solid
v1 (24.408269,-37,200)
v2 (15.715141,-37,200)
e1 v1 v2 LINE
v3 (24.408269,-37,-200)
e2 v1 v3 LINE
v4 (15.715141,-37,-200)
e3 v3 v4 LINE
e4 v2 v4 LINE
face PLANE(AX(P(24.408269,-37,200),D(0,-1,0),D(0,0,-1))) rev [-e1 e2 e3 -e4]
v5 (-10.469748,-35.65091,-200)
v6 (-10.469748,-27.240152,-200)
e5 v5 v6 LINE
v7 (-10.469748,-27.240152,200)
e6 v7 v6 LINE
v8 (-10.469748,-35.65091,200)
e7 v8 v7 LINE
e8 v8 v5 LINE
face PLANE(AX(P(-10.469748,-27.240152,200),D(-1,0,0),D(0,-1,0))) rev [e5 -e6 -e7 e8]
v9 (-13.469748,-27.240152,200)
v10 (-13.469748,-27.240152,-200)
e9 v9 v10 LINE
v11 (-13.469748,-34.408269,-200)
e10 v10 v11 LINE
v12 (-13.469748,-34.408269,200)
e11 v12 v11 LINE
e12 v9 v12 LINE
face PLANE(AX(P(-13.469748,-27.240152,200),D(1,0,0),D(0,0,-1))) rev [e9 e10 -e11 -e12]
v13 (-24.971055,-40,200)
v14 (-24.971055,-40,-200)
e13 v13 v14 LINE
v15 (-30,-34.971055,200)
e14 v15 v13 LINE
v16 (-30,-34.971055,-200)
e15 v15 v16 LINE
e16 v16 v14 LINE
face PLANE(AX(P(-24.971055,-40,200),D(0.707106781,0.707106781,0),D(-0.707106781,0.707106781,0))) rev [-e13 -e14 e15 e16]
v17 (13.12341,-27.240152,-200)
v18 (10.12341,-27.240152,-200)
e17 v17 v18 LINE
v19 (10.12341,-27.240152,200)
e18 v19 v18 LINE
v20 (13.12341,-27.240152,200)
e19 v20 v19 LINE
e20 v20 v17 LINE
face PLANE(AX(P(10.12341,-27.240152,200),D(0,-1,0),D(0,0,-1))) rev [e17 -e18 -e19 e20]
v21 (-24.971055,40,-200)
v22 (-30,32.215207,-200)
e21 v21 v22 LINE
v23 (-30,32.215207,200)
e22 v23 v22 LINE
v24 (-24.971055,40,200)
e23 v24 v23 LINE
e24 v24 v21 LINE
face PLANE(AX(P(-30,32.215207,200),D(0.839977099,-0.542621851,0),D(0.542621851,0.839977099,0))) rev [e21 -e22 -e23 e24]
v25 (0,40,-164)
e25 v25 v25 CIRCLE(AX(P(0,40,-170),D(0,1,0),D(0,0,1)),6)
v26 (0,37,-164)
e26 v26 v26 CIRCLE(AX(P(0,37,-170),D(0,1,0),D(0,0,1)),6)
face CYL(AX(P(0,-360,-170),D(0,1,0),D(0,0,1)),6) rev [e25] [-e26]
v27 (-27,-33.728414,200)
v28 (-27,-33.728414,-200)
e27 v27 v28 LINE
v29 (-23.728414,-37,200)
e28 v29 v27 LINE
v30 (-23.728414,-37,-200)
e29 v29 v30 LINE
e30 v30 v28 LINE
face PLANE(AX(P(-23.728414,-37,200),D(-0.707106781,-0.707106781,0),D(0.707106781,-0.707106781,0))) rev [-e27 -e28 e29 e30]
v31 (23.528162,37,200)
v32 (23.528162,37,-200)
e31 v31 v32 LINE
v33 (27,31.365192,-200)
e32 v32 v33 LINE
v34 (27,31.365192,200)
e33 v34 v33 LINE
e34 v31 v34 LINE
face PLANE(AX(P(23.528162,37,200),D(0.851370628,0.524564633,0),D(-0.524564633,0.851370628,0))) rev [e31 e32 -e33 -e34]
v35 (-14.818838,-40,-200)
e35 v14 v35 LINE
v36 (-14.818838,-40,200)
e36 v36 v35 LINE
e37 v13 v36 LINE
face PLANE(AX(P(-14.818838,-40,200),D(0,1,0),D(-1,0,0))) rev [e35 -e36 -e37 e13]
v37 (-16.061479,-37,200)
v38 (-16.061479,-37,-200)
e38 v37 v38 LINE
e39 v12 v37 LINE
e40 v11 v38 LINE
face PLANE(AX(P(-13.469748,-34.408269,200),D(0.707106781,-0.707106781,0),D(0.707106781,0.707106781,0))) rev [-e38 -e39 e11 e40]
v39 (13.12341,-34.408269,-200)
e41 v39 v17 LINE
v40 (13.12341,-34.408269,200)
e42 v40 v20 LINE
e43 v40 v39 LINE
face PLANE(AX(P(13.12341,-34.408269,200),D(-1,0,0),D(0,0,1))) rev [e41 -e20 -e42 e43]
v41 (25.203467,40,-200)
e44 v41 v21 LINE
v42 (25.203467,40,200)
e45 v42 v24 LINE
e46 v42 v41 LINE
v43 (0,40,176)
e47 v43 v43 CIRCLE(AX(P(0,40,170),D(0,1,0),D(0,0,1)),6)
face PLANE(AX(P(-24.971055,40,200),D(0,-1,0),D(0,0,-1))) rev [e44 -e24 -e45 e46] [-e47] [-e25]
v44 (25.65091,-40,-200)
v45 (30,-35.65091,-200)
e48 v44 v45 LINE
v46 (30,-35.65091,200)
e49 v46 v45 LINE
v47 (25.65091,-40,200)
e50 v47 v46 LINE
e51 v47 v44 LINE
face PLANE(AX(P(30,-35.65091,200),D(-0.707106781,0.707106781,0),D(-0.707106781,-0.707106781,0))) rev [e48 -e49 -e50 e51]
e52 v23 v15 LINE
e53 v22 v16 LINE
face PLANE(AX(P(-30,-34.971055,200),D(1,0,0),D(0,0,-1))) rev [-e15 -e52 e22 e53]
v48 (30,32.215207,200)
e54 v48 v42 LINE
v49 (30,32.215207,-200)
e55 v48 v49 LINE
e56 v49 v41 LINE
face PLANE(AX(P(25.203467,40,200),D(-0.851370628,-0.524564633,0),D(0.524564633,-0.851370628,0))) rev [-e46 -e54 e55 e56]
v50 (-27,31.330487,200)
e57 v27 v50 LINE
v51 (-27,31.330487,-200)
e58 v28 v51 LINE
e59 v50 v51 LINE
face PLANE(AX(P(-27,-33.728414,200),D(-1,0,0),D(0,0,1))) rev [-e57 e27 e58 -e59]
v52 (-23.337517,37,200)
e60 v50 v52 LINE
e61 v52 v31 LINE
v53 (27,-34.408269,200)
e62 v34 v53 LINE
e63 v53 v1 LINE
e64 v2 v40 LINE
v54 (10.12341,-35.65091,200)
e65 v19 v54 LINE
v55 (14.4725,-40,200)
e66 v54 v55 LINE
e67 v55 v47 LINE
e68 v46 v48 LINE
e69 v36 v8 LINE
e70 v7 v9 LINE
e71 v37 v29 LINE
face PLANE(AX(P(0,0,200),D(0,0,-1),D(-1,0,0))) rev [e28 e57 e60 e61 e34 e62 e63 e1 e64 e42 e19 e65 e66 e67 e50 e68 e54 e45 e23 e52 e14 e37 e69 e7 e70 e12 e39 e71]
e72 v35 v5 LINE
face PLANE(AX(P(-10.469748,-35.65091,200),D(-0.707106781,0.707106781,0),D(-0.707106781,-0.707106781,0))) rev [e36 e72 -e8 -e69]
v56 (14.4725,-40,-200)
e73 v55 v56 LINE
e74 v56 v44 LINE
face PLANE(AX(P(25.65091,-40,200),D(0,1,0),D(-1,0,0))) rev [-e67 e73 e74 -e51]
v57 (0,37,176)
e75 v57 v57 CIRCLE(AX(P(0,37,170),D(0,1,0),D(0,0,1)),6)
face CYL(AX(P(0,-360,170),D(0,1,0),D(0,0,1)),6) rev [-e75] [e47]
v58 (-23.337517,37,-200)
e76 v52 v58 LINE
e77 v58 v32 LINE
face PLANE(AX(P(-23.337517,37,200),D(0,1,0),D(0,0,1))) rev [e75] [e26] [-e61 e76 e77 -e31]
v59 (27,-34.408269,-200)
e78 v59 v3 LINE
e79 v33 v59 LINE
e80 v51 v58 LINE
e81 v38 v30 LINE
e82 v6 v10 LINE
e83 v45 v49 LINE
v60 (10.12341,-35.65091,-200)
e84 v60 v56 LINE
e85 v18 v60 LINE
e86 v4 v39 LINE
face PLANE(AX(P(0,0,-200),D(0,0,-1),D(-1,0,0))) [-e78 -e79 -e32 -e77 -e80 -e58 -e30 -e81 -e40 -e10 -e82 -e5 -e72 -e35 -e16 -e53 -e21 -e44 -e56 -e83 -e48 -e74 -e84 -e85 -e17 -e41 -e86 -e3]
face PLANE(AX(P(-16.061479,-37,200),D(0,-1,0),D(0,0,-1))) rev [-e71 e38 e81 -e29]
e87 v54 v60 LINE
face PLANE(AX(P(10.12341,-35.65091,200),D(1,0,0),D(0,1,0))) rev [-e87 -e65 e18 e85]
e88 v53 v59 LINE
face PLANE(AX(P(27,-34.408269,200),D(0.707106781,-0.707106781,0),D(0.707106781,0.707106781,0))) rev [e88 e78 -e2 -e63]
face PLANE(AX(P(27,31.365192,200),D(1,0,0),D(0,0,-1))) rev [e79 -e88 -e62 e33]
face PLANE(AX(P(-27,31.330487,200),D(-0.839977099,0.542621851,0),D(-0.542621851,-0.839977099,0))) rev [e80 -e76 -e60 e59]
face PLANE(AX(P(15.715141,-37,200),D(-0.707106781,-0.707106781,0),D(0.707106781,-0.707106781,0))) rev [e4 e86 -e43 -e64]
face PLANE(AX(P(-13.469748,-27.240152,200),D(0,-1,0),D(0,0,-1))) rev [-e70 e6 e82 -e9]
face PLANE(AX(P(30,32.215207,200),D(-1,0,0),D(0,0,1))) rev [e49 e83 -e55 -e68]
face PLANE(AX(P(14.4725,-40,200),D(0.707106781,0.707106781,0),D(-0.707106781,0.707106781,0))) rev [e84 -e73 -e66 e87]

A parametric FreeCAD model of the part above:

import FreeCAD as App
import Part
import Sketcher


def add_polygon(sketch, points):
    """Adds a closed chain of lines whose ends are joined by coincident constraints."""
    first, n = sketch.GeometryCount, len(points)
    for a, b in zip(points, points[1:] + points[:1]):
        sketch.addGeometry(Part.LineSegment(App.Vector(*a, 0), App.Vector(*b, 0)), False)
    for i in range(n):
        sketch.addConstraint(Sketcher.Constraint("Coincident", first + i, 2, first + (i + 1) % n, 1))

doc = App.newDocument("Part")
params = doc.addObject("Spreadsheet::Sheet", "Params")
for row, (alias, value) in enumerate([
    ("sketch1_width", "3 mm"),
    ("pad1_length", "400 mm"),
    ("sketch2_diameter", "12 mm"),
    ("pocket1_length", "400 mm"),
], start=1):
    params.set(f"A{row}", alias)
    params.set(f"B{row}", "=" + value)
    params.setAlias(f"B{row}", alias)

body = doc.addObject("PartDesign::Body", "Body")

# Sketch on XY plane
sketch1 = body.newObject("Sketcher::SketchObject", "Sketch")
sketch1.AttachmentSupport = (doc.getObject("XY_Plane"), [""])
sketch1.MapMode = "FlatFace"
add_polygon(sketch1, [(-10.469748, -35.65091), (-10.469748, -27.240152), (-13.469748, -27.240152), (-13.469748, -34.408269), (-16.061479, -37), (-23.728414, -37), (-27, -33.728414), (-27, 31.330487), (-23.337517, 37), (23.528162, 37), (27, 31.365192), (27, -34.408269), (24.408269, -37), (15.715141, -37), (13.12341, -34.408269), (13.12341, -27.240152), (10.12341, -27.240152), (10.12341, -35.65091), (14.4725, -40), (25.65091, -40), (30, -35.65091), (30, 32.215207), (25.203467, 40), (-24.971055, 40), (-30, 32.215207), (-30, -34.971055), (-24.971055, -40), (-14.818838, -40)])  # lines 0-27
sketch1.addConstraint([
    Sketcher.Constraint("Vertical", 0),
    Sketcher.Constraint("Horizontal", 1),
    Sketcher.Constraint("Vertical", 2),
    Sketcher.Constraint("Horizontal", 4),
    Sketcher.Constraint("Vertical", 6),
    Sketcher.Constraint("Horizontal", 8),
    Sketcher.Constraint("Vertical", 10),
    Sketcher.Constraint("Horizontal", 12),
    Sketcher.Constraint("Vertical", 14),
    Sketcher.Constraint("Horizontal", 15),
    Sketcher.Constraint("Vertical", 16),
    Sketcher.Constraint("Horizontal", 18),
    Sketcher.Constraint("Vertical", 20),
    Sketcher.Constraint("Horizontal", 22),
    Sketcher.Constraint("Vertical", 24),
    Sketcher.Constraint("Horizontal", 26),
    Sketcher.Constraint("Symmetric", 20, 2, 23, 2, -2),
    Sketcher.Constraint("Symmetric", 22, 2, 25, 2, -1),
    Sketcher.Constraint("Perpendicular", 3, 5),
    Sketcher.Constraint("Perpendicular", 5, 11),
    Sketcher.Constraint("Perpendicular", 11, 13),
    Sketcher.Constraint("Parallel", 13, 17),
    Sketcher.Constraint("Perpendicular", 17, 19),
    Sketcher.Constraint("Parallel", 9, 21),
    Sketcher.Constraint("Parallel", 7, 23),
    Sketcher.Constraint("Perpendicular", 19, 25),
    Sketcher.Constraint("Perpendicular", 25, 27),
    Sketcher.Constraint("Horizontal", 2, 2, 10, 2),
    Sketcher.Constraint("Horizontal", 4, 2, 11, 2),
    Sketcher.Constraint("Horizontal", 10, 2, 13, 2),
    Sketcher.Constraint("Horizontal", 1, 2, 14, 2),
    Sketcher.Constraint("Horizontal", 16, 2, 19, 2),
    Sketcher.Constraint("Horizontal", 18, 2, 25, 2),
    Sketcher.Constraint("Horizontal", 19, 2, 27, 2),
    Sketcher.Constraint("Equal", 1, 15),
    Sketcher.Constraint("Equal", 11, 13),
    Sketcher.Constraint("DistanceX", 1, 2, 1, 1, 3.0),
    Sketcher.Constraint("DistanceY", 3, 2, -1, 1, 37.0),
    Sketcher.Constraint("DistanceX", 5, 2, -1, 1, 27.0),
    Sketcher.Constraint("DistanceY", -1, 1, 7, 2, 37.0),
    Sketcher.Constraint("DistanceX", -1, 1, 9, 2, 27.0),
    Sketcher.Constraint("DistanceY", 17, 2, -1, 1, 40.0),
    Sketcher.Constraint("DistanceX", -1, 1, 19, 2, 30.0),
    Sketcher.Constraint("DistanceY", 6, 1, 6, 2, 65.058901),
    Sketcher.Constraint("DistanceX", 8, 1, 8, 2, 46.865679),
    Sketcher.Constraint("DistanceX", 12, 2, 12, 1, 8.693128),
    Sketcher.Constraint("DistanceX", 18, 1, 18, 2, 11.17841),
    Sketcher.Constraint("DistanceY", 0, 1, 0, 2, 8.410758),
    Sketcher.Constraint("DistanceY", 10, 2, 10, 1, 65.773461),
    Sketcher.Constraint("DistanceX", -1, 1, 17, 2, 14.4725),
    Sketcher.Constraint("Distance", 5, 4.626721),
    Sketcher.Constraint("DistanceX", 4, 2, 4, 1, 7.666935),
    Sketcher.Constraint("DistanceX", 22, 2, 22, 1, 50.174522),
    Sketcher.Constraint("DistanceX", 26, 1, 26, 2, 10.152217),
])
sketch1.setExpression("Constraints[64]", "Params.sketch1_width")
pad1 = body.newObject("PartDesign::Pad", "Pad")
pad1.Profile = sketch1
pad1.setExpression("Length", "Params.pad1_length")
pad1.Midplane = True

# Sketch on XZ plane
sketch2 = body.newObject("Sketcher::SketchObject", "Sketch001")
sketch2.AttachmentSupport = (doc.getObject("XZ_Plane"), [""])
sketch2.MapMode = "FlatFace"
sketch2.AttachmentOffset = App.Placement(App.Vector(0, 0, -40), App.Rotation())
sketch2.addGeometry([
    Part.Circle(App.Vector(0, -170, 0), App.Vector(0, 0, 1), 6),
    Part.Circle(App.Vector(0, 170, 0), App.Vector(0, 0, 1), 6),
], False)
sketch2.addConstraint([
    Sketcher.Constraint("Equal", 0, 1),
    Sketcher.Constraint("Symmetric", 0, 3, 1, 3, -1, 1),
    Sketcher.Constraint("PointOnObject", 0, 3, -2),
    Sketcher.Constraint("Diameter", 0, 12.0),
    Sketcher.Constraint("DistanceY", 0, 3, -1, 1, 170.0),
])
sketch2.setExpression("Constraints[3]", "Params.sketch2_diameter")
pocket1 = body.newObject("PartDesign::Pocket", "Pocket")
pocket1.Profile = sketch2
pocket1.setExpression("Length", "Params.pocket1_length")
pocket1.Reversed = True

doc.recompute()
